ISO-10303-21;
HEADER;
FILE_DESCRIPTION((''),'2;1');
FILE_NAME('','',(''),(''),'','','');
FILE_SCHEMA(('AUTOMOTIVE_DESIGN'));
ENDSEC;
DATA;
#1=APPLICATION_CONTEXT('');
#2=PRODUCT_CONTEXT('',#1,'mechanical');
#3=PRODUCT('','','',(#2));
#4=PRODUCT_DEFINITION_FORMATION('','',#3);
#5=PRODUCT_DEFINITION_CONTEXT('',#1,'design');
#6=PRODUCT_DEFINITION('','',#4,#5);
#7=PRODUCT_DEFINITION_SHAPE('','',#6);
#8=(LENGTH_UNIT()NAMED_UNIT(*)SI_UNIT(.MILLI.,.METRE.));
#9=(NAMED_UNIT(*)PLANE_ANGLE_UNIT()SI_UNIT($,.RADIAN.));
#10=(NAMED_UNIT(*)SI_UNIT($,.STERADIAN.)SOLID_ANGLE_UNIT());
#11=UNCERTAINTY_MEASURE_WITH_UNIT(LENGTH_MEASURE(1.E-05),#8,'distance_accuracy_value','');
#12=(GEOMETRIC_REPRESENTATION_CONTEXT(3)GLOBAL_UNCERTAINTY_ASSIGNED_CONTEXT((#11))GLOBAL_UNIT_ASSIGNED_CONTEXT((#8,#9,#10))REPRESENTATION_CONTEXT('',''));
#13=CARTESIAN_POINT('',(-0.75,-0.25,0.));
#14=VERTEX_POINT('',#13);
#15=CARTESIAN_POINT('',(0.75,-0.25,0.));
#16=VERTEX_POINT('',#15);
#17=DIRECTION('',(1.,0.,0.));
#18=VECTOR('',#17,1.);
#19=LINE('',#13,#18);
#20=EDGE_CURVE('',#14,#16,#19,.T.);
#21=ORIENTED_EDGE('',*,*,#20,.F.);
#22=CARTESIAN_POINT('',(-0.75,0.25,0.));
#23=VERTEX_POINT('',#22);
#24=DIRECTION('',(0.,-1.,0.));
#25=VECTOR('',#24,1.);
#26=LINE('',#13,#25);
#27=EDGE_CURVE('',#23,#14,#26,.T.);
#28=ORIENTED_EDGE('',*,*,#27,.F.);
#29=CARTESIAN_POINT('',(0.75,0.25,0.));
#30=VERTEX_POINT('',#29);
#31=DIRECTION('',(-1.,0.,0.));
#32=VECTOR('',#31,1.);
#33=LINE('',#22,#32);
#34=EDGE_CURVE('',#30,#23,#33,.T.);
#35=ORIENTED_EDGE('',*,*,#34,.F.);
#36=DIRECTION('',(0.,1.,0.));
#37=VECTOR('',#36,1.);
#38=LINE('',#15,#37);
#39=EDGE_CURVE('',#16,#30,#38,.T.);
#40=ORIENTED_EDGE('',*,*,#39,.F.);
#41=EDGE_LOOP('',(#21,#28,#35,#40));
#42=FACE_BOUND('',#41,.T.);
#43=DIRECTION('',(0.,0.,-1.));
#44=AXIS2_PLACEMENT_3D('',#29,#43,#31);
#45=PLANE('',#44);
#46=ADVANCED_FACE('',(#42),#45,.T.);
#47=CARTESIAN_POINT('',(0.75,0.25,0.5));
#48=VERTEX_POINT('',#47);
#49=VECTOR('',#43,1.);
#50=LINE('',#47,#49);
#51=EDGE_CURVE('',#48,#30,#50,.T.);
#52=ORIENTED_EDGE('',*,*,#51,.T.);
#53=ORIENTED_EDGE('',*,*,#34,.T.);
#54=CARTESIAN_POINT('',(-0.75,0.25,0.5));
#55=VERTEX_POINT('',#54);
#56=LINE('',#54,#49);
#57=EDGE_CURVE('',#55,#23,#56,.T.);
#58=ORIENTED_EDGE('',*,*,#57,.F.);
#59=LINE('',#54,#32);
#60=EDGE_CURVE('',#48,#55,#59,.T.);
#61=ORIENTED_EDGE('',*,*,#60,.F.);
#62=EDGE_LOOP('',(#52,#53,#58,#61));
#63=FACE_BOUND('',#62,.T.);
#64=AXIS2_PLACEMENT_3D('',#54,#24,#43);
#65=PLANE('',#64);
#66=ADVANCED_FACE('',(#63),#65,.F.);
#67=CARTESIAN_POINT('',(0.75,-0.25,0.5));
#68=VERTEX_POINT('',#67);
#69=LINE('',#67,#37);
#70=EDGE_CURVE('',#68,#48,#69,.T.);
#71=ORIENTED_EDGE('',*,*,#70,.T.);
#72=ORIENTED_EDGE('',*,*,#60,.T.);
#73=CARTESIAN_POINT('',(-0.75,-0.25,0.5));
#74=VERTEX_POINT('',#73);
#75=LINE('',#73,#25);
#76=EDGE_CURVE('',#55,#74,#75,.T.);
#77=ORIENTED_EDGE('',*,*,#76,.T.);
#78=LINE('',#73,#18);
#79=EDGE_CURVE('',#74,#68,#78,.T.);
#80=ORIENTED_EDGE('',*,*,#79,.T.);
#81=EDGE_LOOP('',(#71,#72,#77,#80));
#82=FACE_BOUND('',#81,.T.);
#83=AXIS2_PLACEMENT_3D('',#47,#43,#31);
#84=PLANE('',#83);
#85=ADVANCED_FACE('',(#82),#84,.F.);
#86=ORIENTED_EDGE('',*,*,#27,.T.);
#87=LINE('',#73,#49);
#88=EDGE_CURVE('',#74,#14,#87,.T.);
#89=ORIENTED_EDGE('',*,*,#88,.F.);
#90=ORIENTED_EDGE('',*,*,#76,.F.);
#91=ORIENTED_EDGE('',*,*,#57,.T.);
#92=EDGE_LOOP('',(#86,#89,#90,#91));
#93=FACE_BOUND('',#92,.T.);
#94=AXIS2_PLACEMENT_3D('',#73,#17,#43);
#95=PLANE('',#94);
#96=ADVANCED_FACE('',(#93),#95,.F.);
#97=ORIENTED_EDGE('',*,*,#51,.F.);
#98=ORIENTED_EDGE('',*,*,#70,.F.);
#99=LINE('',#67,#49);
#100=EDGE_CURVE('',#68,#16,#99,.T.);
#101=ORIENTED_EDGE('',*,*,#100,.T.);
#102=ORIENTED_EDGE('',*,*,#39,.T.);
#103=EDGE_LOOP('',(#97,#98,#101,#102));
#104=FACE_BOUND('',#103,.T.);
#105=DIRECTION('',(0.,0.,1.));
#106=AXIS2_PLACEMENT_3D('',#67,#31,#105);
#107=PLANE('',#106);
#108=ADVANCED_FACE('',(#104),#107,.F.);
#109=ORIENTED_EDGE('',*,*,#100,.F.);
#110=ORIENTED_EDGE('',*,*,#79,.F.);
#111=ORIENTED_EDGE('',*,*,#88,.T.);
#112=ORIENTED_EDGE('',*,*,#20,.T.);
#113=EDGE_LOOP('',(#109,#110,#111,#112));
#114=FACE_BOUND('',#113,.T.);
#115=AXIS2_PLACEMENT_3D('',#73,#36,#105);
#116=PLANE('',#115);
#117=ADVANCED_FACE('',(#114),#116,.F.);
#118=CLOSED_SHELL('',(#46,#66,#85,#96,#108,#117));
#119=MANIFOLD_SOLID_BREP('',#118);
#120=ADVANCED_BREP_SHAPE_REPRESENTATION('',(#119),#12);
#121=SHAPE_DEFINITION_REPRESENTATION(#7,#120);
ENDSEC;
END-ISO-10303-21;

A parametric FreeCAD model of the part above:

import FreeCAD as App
import Part
import Sketcher

V = App.Vector

doc = App.newDocument("Part")
body = doc.addObject("PartDesign::Body", "Body")

# Sketch on XY plane
sketch1 = body.newObject("Sketcher::SketchObject", "Sketch")
sketch1.AttachmentSupport = (doc.getObject("XY_Plane"), [""])
sketch1.MapMode = "FlatFace"
sketch1.addGeometry([
    Part.LineSegment(V(-0.75, 0.25, 0), V(-0.75, -0.25, 0)),
    Part.LineSegment(V(-0.75, -0.25, 0), V(0.75, -0.25, 0)),
    Part.LineSegment(V(0.75, -0.25, 0), V(0.75, 0.25, 0)),
    Part.LineSegment(V(0.75, 0.25, 0), V(-0.75, 0.25, 0)),
], False)
sketch1.addConstraint([
    Sketcher.Constraint("Coincident", 0, 2, 1, 1),
    Sketcher.Constraint("Coincident", 1, 2, 2, 1),
    Sketcher.Constraint("Coincident", 2, 2, 3, 1),
    Sketcher.Constraint("Coincident", 3, 2, 0, 1),
    Sketcher.Constraint("Vertical", 0),
    Sketcher.Constraint("Horizontal", 1),
    Sketcher.Constraint("Vertical", 2),
    Sketcher.Constraint("Horizontal", 3),
    Sketcher.Constraint("Symmetric", 0, 2, 2, 2, -1, 1),
    Sketcher.Constraint("DistanceX", 1, 1, 1, 2, 1.5),
    Sketcher.Constraint("DistanceY", 0, 2, 0, 1, 0.5),
])
pad1 = body.newObject("PartDesign::Pad", "Pad")
pad1.Profile = sketch1
pad1.Length = 0.5

doc.recompute()
